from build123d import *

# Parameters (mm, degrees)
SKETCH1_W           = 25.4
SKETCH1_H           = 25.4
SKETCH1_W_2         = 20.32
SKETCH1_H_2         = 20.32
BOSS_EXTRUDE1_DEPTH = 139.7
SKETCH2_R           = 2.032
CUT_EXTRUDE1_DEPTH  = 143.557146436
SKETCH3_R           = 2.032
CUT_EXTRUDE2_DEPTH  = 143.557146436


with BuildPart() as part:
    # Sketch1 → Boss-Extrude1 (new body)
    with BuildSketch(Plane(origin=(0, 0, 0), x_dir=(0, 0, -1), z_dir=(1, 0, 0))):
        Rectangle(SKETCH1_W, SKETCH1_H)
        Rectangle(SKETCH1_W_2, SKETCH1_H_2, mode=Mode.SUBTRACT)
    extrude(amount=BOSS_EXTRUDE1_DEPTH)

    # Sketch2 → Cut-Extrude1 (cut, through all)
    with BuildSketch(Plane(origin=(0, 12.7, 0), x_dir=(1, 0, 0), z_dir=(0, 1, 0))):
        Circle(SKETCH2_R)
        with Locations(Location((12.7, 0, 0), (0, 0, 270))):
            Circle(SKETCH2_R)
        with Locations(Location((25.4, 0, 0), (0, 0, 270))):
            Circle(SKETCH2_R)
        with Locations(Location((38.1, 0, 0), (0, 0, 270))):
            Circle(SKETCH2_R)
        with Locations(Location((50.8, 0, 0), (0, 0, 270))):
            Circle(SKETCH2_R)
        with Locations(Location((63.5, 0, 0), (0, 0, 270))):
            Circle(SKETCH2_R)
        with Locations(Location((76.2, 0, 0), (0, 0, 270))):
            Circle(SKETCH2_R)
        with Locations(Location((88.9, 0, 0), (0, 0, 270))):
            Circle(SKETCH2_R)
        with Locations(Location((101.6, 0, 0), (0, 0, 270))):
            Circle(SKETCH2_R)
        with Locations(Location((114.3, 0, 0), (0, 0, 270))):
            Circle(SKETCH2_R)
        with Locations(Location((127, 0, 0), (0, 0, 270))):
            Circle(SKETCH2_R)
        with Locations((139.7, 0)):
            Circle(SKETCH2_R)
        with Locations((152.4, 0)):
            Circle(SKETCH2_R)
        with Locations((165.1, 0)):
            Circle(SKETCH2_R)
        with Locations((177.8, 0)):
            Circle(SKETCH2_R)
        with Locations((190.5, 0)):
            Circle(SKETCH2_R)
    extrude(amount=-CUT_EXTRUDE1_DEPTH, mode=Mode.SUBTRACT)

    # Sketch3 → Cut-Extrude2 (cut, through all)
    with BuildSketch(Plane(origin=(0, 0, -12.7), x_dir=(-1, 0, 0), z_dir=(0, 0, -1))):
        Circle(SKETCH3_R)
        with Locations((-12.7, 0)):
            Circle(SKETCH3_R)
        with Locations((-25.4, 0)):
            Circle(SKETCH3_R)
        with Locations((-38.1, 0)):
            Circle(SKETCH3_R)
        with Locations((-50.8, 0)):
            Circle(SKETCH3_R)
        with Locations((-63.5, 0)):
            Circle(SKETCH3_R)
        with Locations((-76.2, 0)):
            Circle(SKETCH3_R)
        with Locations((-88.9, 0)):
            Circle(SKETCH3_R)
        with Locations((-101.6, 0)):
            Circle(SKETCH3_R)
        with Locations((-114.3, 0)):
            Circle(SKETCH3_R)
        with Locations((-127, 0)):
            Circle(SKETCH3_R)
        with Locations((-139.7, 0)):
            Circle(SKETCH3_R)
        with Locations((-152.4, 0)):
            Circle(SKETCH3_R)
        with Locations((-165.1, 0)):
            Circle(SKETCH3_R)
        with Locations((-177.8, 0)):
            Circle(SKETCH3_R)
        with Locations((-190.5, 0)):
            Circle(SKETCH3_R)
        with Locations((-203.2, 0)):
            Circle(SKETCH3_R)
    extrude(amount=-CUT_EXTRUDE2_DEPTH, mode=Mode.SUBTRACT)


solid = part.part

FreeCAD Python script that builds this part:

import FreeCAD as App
import Part
import Sketcher
Q = App.Units.Quantity


def add_polygon(sketch, points):
    """Adds a closed chain of lines whose ends are joined by coincident constraints."""
    first, n = sketch.GeometryCount, len(points)
    for a, b in zip(points, points[1:] + points[:1]):
        sketch.addGeometry(Part.LineSegment(App.Vector(*a, 0), App.Vector(*b, 0)), False)
    for i in range(n):
        sketch.addConstraint(Sketcher.Constraint("Coincident", first + i, 2, first + (i + 1) % n, 1))

doc = App.newDocument("Part")
body = doc.addObject("PartDesign::Body", "Body")

# Sketch on YZ plane
sketch1 = body.newObject("Sketcher::SketchObject", "Sketch")
sketch1.AttachmentSupport = (doc.getObject("YZ_Plane"), [""])
sketch1.MapMode = "FlatFace"
add_polygon(sketch1, [(13, 13), (-13, 13), (-13, -13), (13, -13)])  # lines 0-3
add_polygon(sketch1, [(-10, -10), (-10, 10), (10, 10), (10, -10)])  # lines 4-7
sketch1.addConstraint([
    Sketcher.Constraint("Horizontal", 0),
    Sketcher.Constraint("Vertical", 1),
    Sketcher.Constraint("Horizontal", 2),
    Sketcher.Constraint("Vertical", 3),
    Sketcher.Constraint("Vertical", 4),
    Sketcher.Constraint("Horizontal", 5),
    Sketcher.Constraint("Vertical", 6),
    Sketcher.Constraint("Horizontal", 7),
    Sketcher.Constraint("Symmetric", 0, 2, 2, 2, -1, 1),
    Sketcher.Constraint("Symmetric", 4, 2, 6, 2, -1, 1),
    Sketcher.Constraint("Equal", 2, 1),
    Sketcher.Constraint("Equal", 7, 4),
    Sketcher.Constraint("DistanceX", 0, 2, 0, 1, Q("1 in")),
    Sketcher.Constraint("DistanceX", 5, 1, 5, 2, Q("0.8 in")),
])
pad1 = body.newObject("PartDesign::Pad", "Pad")
pad1.Profile = sketch1
pad1.Length = Q("5.5 in")

# Sketch on XZ plane
sketch2 = body.newObject("Sketcher::SketchObject", "Sketch001")
sketch2.AttachmentSupport = (doc.getObject("XZ_Plane"), [""])
sketch2.MapMode = "FlatFace"
sketch2.AttachmentOffset = App.Placement(App.Vector(0, 0, -0.5 * 25.4), App.Rotation())
sketch2.addGeometry([
    Part.Circle(App.Vector(0, 0, 0), App.Vector(0, 0, 1), 2),  # 0
    Part.Circle(App.Vector(12.7, 0, 0), App.Vector(0, 0, 1), 2),  # 1
    Part.Circle(App.Vector(25.4, 0, 0), App.Vector(0, 0, 1), 2),  # 2
    Part.Circle(App.Vector(38.1, 0, 0), App.Vector(0, 0, 1), 2),  # 3
    Part.Circle(App.Vector(50.8, 0, 0), App.Vector(0, 0, 1), 2),  # 4
    Part.Circle(App.Vector(63.5, 0, 0), App.Vector(0, 0, 1), 2),  # 5
    Part.Circle(App.Vector(76.2, 0, 0), App.Vector(0, 0, 1), 2),  # 6
    Part.Circle(App.Vector(88.9, 0, 0), App.Vector(0, 0, 1), 2),  # 7
    Part.Circle(App.Vector(101.6, 0, 0), App.Vector(0, 0, 1), 2),  # 8
    Part.Circle(App.Vector(114.3, 0, 0), App.Vector(0, 0, 1), 2),  # 9
    Part.Circle(App.Vector(127, 0, 0), App.Vector(0, 0, 1), 2),  # 10
    Part.Circle(App.Vector(139.7, 0, 0), App.Vector(0, 0, 1), 2),  # 11
    Part.Circle(App.Vector(152.4, 0, 0), App.Vector(0, 0, 1), 2),  # 12
    Part.Circle(App.Vector(165.1, 0, 0), App.Vector(0, 0, 1), 2),  # 13
    Part.Circle(App.Vector(177.8, 0, 0), App.Vector(0, 0, 1), 2),  # 14
    Part.Circle(App.Vector(190.5, 0, 0), App.Vector(0, 0, 1), 2),  # 15
], False)
sketch2.addConstraint([
    Sketcher.Constraint("Coincident", 0, 3, -1, 1),
    Sketcher.Constraint("Equal", 0, 1),
    Sketcher.Constraint("Equal", 1, 2),
    Sketcher.Constraint("Equal", 2, 3),
    Sketcher.Constraint("Equal", 3, 4),
    Sketcher.Constraint("Equal", 4, 5),
    Sketcher.Constraint("Equal", 5, 6),
    Sketcher.Constraint("Equal", 6, 7),
    Sketcher.Constraint("Equal", 7, 8),
    Sketcher.Constraint("Equal", 8, 9),
    Sketcher.Constraint("Equal", 9, 10),
    Sketcher.Constraint("Equal", 10, 11),
    Sketcher.Constraint("Equal", 11, 12),
    Sketcher.Constraint("Equal", 12, 13),
    Sketcher.Constraint("Equal", 13, 14),
    Sketcher.Constraint("Equal", 14, 15),
    Sketcher.Constraint("PointOnObject", 1, 3, -1),
    Sketcher.Constraint("PointOnObject", 2, 3, -1),
    Sketcher.Constraint("PointOnObject", 3, 3, -1),
    Sketcher.Constraint("PointOnObject", 4, 3, -1),
    Sketcher.Constraint("PointOnObject", 5, 3, -1),
    Sketcher.Constraint("PointOnObject", 6, 3, -1),
    Sketcher.Constraint("PointOnObject", 7, 3, -1),
    Sketcher.Constraint("PointOnObject", 8, 3, -1),
    Sketcher.Constraint("PointOnObject", 9, 3, -1),
    Sketcher.Constraint("PointOnObject", 10, 3, -1),
    Sketcher.Constraint("PointOnObject", 11, 3, -1),
    Sketcher.Constraint("PointOnObject", 12, 3, -1),
    Sketcher.Constraint("PointOnObject", 13, 3, -1),
    Sketcher.Constraint("PointOnObject", 14, 3, -1),
    Sketcher.Constraint("PointOnObject", 15, 3, -1),
    Sketcher.Constraint("Diameter", 0, Q("0.16 in")),
    Sketcher.Constraint("DistanceX", -1, 1, 2, 3, Q("1 in")),
    Sketcher.Constraint("DistanceX", -1, 1, 4, 3, Q("2 in")),
    Sketcher.Constraint("DistanceX", -1, 1, 6, 3, Q("3 in")),
    Sketcher.Constraint("DistanceX", -1, 1, 8, 3, Q("4 in")),
    Sketcher.Constraint("DistanceX", -1, 1, 10, 3, Q("5 in")),
    Sketcher.Constraint("DistanceX", -1, 1, 12, 3, Q("6 in")),
    Sketcher.Constraint("DistanceX", -1, 1, 14, 3, Q("7 in")),
    Sketcher.Constraint("DistanceX", 1, 3, 3, 3, Q("1 in")),
    Sketcher.Constraint("DistanceX", 3, 3, 5, 3, Q("1 in")),
    Sketcher.Constraint("DistanceX", 5, 3, 7, 3, Q("1 in")),
    Sketcher.Constraint("DistanceX", 7, 3, 9, 3, Q("1 in")),
    Sketcher.Constraint("DistanceX", 9, 3, 11, 3, Q("1 in")),
    Sketcher.Constraint("DistanceX", 11, 3, 13, 3, Q("1 in")),
    Sketcher.Constraint("DistanceX", 13, 3, 15, 3, Q("1 in")),
    Sketcher.Constraint("DistanceX", -1, 1, 1, 3, Q("0.5 in")),
])
pocket1 = body.newObject("PartDesign::Pocket", "Pocket")
pocket1.Profile = sketch2
pocket1.Type = "ThroughAll"
pocket1.Reversed = True

# Sketch on XY plane
sketch3 = body.newObject("Sketcher::SketchObject", "Sketch002")
sketch3.AttachmentSupport = (doc.getObject("XY_Plane"), [""])
sketch3.MapMode = "FlatFace"
sketch3.AttachmentOffset = App.Placement(App.Vector(0, 0, -0.5 * 25.4), App.Rotation())
sketch3.addGeometry([
    Part.Circle(App.Vector(0, 0, 0), App.Vector(0, 0, 1), 2),  # 0
    Part.Circle(App.Vector(12.7, 0, 0), App.Vector(0, 0, 1), 2),  # 1
    Part.Circle(App.Vector(25.4, 0, 0), App.Vector(0, 0, 1), 2),  # 2
    Part.Circle(App.Vector(38.1, 0, 0), App.Vector(0, 0, 1), 2),  # 3
    Part.Circle(App.Vector(50.8, 0, 0), App.Vector(0, 0, 1), 2),  # 4
    Part.Circle(App.Vector(63.5, 0, 0), App.Vector(0, 0, 1), 2),  # 5
    Part.Circle(App.Vector(76.2, 0, 0), App.Vector(0, 0, 1), 2),  # 6
    Part.Circle(App.Vector(88.9, 0, 0), App.Vector(0, 0, 1), 2),  # 7
    Part.Circle(App.Vector(101.6, 0, 0), App.Vector(0, 0, 1), 2),  # 8
    Part.Circle(App.Vector(114.3, 0, 0), App.Vector(0, 0, 1), 2),  # 9
    Part.Circle(App.Vector(127, 0, 0), App.Vector(0, 0, 1), 2),  # 10
    Part.Circle(App.Vector(139.7, 0, 0), App.Vector(0, 0, 1), 2),  # 11
    Part.Circle(App.Vector(152.4, 0, 0), App.Vector(0, 0, 1), 2),  # 12
    Part.Circle(App.Vector(165.1, 0, 0), App.Vector(0, 0, 1), 2),  # 13
    Part.Circle(App.Vector(177.8, 0, 0), App.Vector(0, 0, 1), 2),  # 14
    Part.Circle(App.Vector(190.5, 0, 0), App.Vector(0, 0, 1), 2),  # 15
    Part.Circle(App.Vector(203.2, 0, 0), App.Vector(0, 0, 1), 2),  # 16
], False)
sketch3.addConstraint([
    Sketcher.Constraint("Coincident", 0, 3, -1, 1),
    Sketcher.Constraint("Equal", 0, 1),
    Sketcher.Constraint("Equal", 1, 2),
    Sketcher.Constraint("Equal", 2, 3),
    Sketcher.Constraint("Equal", 3, 4),
    Sketcher.Constraint("Equal", 4, 5),
    Sketcher.Constraint("Equal", 5, 6),
    Sketcher.Constraint("Equal", 6, 7),
    Sketcher.Constraint("Equal", 7, 8),
    Sketcher.Constraint("Equal", 8, 9),
    Sketcher.Constraint("Equal", 9, 10),
    Sketcher.Constraint("Equal", 10, 11),
    Sketcher.Constraint("Equal", 11, 12),
    Sketcher.Constraint("Equal", 12, 13),
    Sketcher.Constraint("Equal", 13, 14),
    Sketcher.Constraint("Equal", 14, 15),
    Sketcher.Constraint("Equal", 15, 16),
    Sketcher.Constraint("PointOnObject", 1, 3, -1),
    Sketcher.Constraint("PointOnObject", 2, 3, -1),
    Sketcher.Constraint("PointOnObject", 3, 3, -1),
    Sketcher.Constraint("PointOnObject", 4, 3, -1),
    Sketcher.Constraint("PointOnObject", 5, 3, -1),
    Sketcher.Constraint("PointOnObject", 6, 3, -1),
    Sketcher.Constraint("PointOnObject", 7, 3, -1),
    Sketcher.Constraint("PointOnObject", 8, 3, -1),
    Sketcher.Constraint("PointOnObject", 9, 3, -1),
    Sketcher.Constraint("PointOnObject", 10, 3, -1),
    Sketcher.Constraint("PointOnObject", 11, 3, -1),
    Sketcher.Constraint("PointOnObject", 12, 3, -1),
    Sketcher.Constraint("PointOnObject", 13, 3, -1),
    Sketcher.Constraint("PointOnObject", 14, 3, -1),
    Sketcher.Constraint("PointOnObject", 15, 3, -1),
    Sketcher.Constraint("PointOnObject", 16, 3, -1),
    Sketcher.Constraint("Diameter", 0, Q("0.16 in")),
    Sketcher.Constraint("DistanceX", -1, 1, 2, 3, Q("1 in")),
    Sketcher.Constraint("DistanceX", -1, 1, 4, 3, Q("2 in")),
    Sketcher.Constraint("DistanceX", -1, 1, 6, 3, Q("3 in")),
    Sketcher.Constraint("DistanceX", -1, 1, 8, 3, Q("4 in")),
    Sketcher.Constraint("DistanceX", -1, 1, 10, 3, Q("5 in")),
    Sketcher.Constraint("DistanceX", -1, 1, 12, 3, Q("6 in")),
    Sketcher.Constraint("DistanceX", -1, 1, 14, 3, Q("7 in")),
    Sketcher.Constraint("DistanceX", -1, 1, 16, 3, Q("8 in")),
    Sketcher.Constraint("DistanceX", 1, 3, 3, 3, Q("1 in")),
    Sketcher.Constraint("DistanceX", 3, 3, 5, 3, Q("1 in")),
    Sketcher.Constraint("DistanceX", 5, 3, 7, 3, Q("1 in")),
    Sketcher.Constraint("DistanceX", 7, 3, 9, 3, Q("1 in")),
    Sketcher.Constraint("DistanceX", 9, 3, 11, 3, Q("1 in")),
    Sketcher.Constraint("DistanceX", 11, 3, 13, 3, Q("1 in")),
    Sketcher.Constraint("DistanceX", 13, 3, 15, 3, Q("1 in")),
    Sketcher.Constraint("DistanceX", -1, 1, 1, 3, Q("0.5 in")),
])
pocket2 = body.newObject("PartDesign::Pocket", "Pocket001")
pocket2.Profile = sketch3
pocket2.Type = "ThroughAll"
pocket2.Reversed = True

doc.recompute()
